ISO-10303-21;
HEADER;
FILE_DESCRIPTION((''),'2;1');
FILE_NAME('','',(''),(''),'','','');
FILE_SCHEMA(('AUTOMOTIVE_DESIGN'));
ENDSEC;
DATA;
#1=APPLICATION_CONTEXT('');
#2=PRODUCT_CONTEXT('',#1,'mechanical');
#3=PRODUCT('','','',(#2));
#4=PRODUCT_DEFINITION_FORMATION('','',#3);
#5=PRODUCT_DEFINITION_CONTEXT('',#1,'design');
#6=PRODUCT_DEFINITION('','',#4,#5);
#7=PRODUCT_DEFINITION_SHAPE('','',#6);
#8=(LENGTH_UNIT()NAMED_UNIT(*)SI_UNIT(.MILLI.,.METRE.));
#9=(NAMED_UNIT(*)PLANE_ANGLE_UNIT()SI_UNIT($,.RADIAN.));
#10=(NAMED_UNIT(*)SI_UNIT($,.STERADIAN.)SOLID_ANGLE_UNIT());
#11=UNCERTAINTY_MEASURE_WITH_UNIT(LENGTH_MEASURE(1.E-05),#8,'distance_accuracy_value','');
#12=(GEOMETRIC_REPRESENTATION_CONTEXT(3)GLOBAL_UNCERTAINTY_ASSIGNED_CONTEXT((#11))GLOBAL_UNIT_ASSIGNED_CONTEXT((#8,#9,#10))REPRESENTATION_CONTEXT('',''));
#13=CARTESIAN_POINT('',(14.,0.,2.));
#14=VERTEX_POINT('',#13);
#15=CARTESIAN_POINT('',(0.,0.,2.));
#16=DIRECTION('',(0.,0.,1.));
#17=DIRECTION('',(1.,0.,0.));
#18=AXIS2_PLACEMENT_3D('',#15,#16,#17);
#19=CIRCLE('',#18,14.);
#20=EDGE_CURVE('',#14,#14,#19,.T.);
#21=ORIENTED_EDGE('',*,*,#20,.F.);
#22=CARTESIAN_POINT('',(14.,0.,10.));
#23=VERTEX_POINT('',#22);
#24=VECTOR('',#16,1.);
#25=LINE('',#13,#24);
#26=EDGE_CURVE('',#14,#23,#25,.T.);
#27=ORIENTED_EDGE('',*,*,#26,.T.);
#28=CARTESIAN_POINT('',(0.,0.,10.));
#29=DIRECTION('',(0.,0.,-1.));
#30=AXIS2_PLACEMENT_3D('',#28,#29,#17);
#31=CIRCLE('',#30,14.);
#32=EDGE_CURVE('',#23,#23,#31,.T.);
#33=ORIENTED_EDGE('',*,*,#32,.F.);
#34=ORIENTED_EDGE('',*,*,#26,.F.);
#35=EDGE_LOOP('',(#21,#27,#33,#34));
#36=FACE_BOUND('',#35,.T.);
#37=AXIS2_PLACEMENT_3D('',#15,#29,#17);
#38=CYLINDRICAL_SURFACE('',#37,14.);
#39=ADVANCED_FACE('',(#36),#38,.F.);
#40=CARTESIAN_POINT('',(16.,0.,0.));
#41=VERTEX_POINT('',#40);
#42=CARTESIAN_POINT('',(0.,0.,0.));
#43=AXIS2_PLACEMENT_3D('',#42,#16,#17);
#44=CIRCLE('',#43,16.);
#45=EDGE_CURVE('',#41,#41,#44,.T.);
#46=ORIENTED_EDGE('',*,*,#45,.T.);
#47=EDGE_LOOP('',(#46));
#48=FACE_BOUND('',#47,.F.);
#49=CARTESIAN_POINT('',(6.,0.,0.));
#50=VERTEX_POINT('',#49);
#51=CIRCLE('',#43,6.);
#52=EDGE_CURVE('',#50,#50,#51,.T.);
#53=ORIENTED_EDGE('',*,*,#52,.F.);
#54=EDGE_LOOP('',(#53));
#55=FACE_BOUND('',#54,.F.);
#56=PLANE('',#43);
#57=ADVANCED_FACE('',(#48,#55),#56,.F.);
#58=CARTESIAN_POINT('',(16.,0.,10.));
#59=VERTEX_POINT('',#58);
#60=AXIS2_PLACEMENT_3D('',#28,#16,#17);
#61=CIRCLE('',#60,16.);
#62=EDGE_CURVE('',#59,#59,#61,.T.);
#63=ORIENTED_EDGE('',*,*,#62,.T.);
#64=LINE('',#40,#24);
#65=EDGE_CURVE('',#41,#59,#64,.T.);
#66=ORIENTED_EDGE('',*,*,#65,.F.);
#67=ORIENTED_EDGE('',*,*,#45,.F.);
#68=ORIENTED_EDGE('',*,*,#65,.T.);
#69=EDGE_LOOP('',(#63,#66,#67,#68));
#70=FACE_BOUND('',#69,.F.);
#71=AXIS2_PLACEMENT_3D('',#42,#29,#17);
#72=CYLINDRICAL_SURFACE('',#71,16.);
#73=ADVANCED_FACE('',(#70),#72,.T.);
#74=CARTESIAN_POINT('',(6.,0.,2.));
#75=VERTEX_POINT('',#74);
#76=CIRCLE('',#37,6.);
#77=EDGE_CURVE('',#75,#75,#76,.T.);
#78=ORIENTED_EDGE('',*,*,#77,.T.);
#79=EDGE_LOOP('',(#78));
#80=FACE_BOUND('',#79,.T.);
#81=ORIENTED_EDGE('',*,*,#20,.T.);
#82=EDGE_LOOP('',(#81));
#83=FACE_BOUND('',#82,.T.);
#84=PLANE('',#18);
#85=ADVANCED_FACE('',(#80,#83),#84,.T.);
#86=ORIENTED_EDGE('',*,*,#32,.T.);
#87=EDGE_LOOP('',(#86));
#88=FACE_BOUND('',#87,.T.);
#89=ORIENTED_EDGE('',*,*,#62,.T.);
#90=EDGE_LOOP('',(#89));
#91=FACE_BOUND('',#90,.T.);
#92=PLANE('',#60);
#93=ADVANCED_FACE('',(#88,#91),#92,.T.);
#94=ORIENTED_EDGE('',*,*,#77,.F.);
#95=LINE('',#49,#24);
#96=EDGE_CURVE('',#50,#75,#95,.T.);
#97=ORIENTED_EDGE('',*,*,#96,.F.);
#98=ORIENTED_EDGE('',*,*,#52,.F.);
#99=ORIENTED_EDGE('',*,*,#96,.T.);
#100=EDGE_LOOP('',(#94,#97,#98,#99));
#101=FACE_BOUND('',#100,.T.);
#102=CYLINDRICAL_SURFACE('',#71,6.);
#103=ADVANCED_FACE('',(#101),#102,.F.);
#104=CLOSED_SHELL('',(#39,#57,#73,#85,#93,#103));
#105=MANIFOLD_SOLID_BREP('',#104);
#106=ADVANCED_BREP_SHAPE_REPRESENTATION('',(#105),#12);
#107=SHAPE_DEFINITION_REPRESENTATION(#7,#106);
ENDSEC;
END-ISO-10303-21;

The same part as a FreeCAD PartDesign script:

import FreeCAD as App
import Part
import Sketcher
Q = App.Units.Quantity

doc = App.newDocument("Part")
body = doc.addObject("PartDesign::Body", "Body")

# Sketch on XY plane
sketch1 = body.newObject("Sketcher::SketchObject", "Sketch")
sketch1.AttachmentSupport = (doc.getObject("XY_Plane"), [""])
sketch1.MapMode = "FlatFace"
sketch1.addGeometry(Part.Circle(App.Vector(0, 0, 0), App.Vector(0, 0, 1), 6), False)
sketch1.addConstraint([
    Sketcher.Constraint("Coincident", 0, 3, -1, 1),
    Sketcher.Constraint("Diameter", 0, Q("12 mm")),
])
pad1 = body.newObject("PartDesign::Pad", "Pad")
pad1.Profile = sketch1
pad1.Length = 10
body2 = doc.addObject("PartDesign::Body", "Body001")

# Sketch on XY plane
sketch2 = body2.newObject("Sketcher::SketchObject", "Sketch001")
sketch2.AttachmentSupport = (doc.getObject("XY_Plane001"), [""])
sketch2.MapMode = "FlatFace"
sketch2.AttachmentOffset = App.Placement(App.Vector(0, 0, 2), App.Rotation())
sketch2.addGeometry(Part.Circle(App.Vector(0, 0, 0), App.Vector(0, 0, 1), 14), False)
sketch2.addConstraint([
    Sketcher.Constraint("Coincident", 0, 3, -1, 1),
    Sketcher.Constraint("Diameter", 0, Q("28 mm")),
])
pad2 = body2.newObject("PartDesign::Pad", "Pad001")
pad2.Profile = sketch2
pad2.Length = 13
body3 = doc.addObject("PartDesign::Body", "Body002")

# Sketch on XY plane
sketch3 = body3.newObject("Sketcher::SketchObject", "Sketch002")
sketch3.AttachmentSupport = (doc.getObject("XY_Plane002"), [""])
sketch3.MapMode = "FlatFace"
sketch3.addGeometry(Part.Circle(App.Vector(0, 0, 0), App.Vector(0, 0, 1), 16), False)
sketch3.addConstraint([
    Sketcher.Constraint("Coincident", 0, 3, -1, 1),
    Sketcher.Constraint("Diameter", 0, Q("32 mm")),
])
pad3 = body3.newObject("PartDesign::Pad", "Pad002")
pad3.Profile = sketch3
pad3.Length = 10
doc.recompute()

boolean = body3.newObject("PartDesign::Boolean", "Boolean")
boolean.Type = "Cut"
boolean.addObjects([body2])
doc.recompute()

boolean2 = body3.newObject("PartDesign::Boolean", "Boolean001")
boolean2.Type = "Cut"
boolean2.addObjects([body])

doc.recompute()
